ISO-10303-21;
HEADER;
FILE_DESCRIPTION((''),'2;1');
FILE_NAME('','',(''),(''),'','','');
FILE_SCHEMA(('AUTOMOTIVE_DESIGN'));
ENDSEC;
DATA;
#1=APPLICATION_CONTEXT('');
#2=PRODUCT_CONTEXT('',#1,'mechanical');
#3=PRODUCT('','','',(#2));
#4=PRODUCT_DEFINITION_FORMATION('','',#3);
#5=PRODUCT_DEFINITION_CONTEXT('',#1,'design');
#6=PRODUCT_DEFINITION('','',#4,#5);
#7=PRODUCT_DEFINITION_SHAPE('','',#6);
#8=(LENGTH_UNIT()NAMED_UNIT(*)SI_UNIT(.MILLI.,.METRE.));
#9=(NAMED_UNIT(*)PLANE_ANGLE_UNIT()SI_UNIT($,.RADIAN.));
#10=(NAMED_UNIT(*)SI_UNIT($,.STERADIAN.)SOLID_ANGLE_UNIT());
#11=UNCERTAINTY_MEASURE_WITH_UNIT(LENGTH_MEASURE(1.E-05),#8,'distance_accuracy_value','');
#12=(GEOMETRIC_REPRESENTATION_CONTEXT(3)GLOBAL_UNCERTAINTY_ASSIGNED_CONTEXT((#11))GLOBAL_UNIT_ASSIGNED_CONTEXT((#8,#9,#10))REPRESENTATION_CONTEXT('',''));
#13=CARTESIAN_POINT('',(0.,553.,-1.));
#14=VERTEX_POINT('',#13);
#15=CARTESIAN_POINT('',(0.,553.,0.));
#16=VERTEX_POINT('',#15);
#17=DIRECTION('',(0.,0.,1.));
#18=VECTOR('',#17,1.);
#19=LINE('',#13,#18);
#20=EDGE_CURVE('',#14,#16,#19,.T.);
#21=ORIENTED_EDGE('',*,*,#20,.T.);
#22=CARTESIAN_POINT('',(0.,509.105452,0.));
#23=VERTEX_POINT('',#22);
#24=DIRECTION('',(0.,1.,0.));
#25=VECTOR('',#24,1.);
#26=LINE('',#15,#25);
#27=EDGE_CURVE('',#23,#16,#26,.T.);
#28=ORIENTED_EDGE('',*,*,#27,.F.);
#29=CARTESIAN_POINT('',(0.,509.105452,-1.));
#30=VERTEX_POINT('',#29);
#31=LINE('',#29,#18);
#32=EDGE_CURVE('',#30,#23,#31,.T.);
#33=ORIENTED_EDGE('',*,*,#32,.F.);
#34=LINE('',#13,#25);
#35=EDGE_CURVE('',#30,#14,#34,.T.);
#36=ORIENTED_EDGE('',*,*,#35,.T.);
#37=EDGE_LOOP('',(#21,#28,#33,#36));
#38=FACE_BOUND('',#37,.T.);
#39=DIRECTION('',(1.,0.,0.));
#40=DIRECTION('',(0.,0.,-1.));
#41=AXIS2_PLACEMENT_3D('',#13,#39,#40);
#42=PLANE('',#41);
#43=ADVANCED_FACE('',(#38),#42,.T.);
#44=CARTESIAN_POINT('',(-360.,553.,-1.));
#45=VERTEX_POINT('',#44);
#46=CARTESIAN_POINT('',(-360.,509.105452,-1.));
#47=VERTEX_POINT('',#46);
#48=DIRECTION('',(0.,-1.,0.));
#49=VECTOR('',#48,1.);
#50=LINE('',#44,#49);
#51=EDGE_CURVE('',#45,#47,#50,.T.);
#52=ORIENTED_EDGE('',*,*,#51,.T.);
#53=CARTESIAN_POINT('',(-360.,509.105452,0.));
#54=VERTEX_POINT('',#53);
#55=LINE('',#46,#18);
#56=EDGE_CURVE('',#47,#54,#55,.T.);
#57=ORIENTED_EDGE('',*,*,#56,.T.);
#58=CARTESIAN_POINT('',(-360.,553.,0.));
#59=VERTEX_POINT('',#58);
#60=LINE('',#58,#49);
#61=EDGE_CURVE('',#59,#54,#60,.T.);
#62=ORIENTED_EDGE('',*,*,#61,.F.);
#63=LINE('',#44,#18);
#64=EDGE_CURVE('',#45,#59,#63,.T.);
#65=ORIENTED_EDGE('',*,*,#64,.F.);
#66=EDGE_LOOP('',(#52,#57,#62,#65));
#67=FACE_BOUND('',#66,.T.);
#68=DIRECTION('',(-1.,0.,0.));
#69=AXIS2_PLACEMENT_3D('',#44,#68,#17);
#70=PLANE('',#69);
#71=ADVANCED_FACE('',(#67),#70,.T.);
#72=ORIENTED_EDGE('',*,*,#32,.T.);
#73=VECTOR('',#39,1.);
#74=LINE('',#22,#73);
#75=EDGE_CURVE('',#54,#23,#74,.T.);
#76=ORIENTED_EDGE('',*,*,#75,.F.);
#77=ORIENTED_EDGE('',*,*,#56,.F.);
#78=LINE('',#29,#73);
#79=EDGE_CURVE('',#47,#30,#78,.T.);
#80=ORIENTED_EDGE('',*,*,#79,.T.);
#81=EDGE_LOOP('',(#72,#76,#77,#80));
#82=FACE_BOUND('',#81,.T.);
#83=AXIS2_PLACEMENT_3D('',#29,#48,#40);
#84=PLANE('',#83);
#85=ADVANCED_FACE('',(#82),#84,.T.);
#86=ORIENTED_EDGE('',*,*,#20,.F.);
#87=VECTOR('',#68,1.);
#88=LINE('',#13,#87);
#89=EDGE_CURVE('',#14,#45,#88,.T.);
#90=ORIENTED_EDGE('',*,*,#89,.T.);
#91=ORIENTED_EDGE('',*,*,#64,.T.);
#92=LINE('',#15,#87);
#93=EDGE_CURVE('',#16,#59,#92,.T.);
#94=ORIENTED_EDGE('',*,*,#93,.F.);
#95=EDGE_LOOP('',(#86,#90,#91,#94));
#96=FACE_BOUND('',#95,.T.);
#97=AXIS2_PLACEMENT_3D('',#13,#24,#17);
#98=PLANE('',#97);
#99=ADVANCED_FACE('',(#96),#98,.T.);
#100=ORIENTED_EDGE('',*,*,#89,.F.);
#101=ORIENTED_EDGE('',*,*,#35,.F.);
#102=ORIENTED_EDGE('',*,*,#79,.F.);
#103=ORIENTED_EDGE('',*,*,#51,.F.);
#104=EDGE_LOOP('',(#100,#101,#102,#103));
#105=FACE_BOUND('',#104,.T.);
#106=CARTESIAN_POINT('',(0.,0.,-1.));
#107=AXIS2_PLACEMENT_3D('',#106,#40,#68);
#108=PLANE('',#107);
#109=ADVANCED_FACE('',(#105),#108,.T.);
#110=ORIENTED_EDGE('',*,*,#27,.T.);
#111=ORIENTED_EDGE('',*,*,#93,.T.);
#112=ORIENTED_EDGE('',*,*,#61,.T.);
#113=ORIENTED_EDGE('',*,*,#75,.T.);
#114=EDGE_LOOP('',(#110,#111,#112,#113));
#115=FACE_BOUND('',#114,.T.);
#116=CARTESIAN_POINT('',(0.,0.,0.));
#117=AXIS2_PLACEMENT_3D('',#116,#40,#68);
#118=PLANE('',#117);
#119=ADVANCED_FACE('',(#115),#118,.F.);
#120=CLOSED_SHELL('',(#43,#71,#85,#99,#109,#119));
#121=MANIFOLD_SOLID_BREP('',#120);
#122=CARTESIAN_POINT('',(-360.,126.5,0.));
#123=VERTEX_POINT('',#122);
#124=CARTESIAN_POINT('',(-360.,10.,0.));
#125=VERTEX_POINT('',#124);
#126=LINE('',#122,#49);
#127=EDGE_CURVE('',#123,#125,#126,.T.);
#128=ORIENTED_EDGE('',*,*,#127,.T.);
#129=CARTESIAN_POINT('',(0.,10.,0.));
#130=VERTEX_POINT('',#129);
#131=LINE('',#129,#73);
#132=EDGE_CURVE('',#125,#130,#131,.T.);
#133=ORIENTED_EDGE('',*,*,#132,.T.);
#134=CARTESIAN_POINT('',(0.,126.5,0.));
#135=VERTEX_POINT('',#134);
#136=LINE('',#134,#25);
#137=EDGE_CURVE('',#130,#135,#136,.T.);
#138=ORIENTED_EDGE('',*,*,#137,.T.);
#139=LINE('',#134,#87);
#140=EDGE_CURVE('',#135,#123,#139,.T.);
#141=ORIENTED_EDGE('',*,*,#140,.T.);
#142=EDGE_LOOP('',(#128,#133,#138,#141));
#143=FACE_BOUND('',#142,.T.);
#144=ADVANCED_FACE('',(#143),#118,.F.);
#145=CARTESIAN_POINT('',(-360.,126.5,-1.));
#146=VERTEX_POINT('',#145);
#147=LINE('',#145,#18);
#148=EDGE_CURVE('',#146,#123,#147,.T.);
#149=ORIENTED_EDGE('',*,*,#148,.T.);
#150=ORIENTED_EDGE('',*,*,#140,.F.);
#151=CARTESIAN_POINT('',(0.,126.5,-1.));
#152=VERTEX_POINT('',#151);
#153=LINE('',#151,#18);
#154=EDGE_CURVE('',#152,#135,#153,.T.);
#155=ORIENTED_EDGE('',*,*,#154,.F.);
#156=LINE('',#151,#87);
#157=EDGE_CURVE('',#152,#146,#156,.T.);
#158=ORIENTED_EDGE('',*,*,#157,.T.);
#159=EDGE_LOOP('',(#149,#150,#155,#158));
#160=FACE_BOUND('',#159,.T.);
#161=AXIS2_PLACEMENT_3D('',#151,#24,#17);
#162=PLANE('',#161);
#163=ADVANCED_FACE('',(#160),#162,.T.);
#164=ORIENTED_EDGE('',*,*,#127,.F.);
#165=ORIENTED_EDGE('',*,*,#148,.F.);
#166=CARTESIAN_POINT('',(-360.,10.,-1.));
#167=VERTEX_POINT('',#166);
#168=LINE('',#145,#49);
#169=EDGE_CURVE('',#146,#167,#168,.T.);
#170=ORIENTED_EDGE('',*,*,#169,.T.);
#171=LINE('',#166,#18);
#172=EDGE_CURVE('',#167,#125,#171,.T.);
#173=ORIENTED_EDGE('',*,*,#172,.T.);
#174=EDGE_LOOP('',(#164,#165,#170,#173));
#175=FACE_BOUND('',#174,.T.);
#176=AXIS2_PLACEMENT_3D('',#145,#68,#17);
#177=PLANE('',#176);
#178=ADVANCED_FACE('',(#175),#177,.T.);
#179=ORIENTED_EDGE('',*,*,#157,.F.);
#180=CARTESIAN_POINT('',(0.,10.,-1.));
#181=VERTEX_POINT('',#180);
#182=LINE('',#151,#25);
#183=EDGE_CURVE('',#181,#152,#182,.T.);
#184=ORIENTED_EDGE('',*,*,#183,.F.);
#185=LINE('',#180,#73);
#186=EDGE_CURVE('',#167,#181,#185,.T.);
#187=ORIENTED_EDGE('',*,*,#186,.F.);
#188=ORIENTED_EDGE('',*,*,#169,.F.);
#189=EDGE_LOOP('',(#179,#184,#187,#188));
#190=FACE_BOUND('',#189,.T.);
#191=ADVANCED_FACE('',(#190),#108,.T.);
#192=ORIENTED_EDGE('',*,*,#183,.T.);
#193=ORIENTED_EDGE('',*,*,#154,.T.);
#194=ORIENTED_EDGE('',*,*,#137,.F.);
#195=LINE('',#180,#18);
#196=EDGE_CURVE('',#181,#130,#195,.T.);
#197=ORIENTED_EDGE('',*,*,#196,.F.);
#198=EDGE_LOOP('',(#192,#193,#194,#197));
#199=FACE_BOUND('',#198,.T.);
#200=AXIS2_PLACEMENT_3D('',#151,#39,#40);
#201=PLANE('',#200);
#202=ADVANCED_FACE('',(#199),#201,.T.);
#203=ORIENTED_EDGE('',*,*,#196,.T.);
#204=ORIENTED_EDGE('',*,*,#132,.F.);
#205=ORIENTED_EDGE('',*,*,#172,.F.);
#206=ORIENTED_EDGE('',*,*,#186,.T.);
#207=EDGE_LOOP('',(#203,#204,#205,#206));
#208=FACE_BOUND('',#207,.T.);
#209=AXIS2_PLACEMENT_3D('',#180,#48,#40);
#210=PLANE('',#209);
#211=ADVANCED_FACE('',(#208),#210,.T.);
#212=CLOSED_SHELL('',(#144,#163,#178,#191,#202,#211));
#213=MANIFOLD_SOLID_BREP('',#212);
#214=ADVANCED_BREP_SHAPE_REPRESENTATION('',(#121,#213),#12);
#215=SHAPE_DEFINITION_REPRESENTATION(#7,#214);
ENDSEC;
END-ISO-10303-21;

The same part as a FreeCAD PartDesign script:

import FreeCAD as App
import Part
import Sketcher
from FreeCAD import Vector


def add_polygon(sketch, points):
    """Adds a closed chain of lines whose ends are joined by coincident constraints."""
    first, n = sketch.GeometryCount, len(points)
    for a, b in zip(points, points[1:] + points[:1]):
        sketch.addGeometry(Part.LineSegment(App.Vector(*a, 0), App.Vector(*b, 0)), False)
    for i in range(n):
        sketch.addConstraint(Sketcher.Constraint("Coincident", first + i, 2, first + (i + 1) % n, 1))

doc = App.newDocument("Part")
body = doc.addObject("PartDesign::Body", "Body")

sketch1 = body.newObject("Sketcher::SketchObject", "Sketch")
sketch1.AttachmentSupport = (doc.getObject("XY_Plane"), [""])
sketch1.MapMode = "FlatFace"
add_polygon(sketch1, [(-360, 127), (-360, 10), (0, 10), (0, 127)])
sketch1.addConstraint(Sketcher.Constraint("Vertical", 0))
sketch1.addConstraint(Sketcher.Constraint("Horizontal", 1))
sketch1.addConstraint(Sketcher.Constraint("Vertical", 2))
sketch1.addConstraint(Sketcher.Constraint("Horizontal", 3))
sketch1.addConstraint(Sketcher.Constraint("PointOnObject", 1, 2, -2))
sketch1.addConstraint(Sketcher.Constraint("DistanceX", 1, 1, 1, 2, 360.0))
sketch1.addConstraint(Sketcher.Constraint("DistanceY", 0, 2, 0, 1, 116.5))
sketch1.addConstraint(Sketcher.Constraint("DistanceY", -1, 1, 0, 2, 10.0))
pad1 = body.newObject("PartDesign::Pad", "Pad")
pad1.Profile = sketch1
pad1.Length = 1
pad1.Reversed = True
body2 = doc.addObject("PartDesign::Body", "Body001")

sketch2 = body2.newObject("Sketcher::SketchObject", "Sketch001")
sketch2.AttachmentSupport = (doc.getObject("XY_Plane001"), [""])
sketch2.MapMode = "FlatFace"
add_polygon(sketch2, [(-360, 553), (-360, 509), (0, 509), (0, 553)])
sketch2.addConstraint(Sketcher.Constraint("Vertical", 0))
sketch2.addConstraint(Sketcher.Constraint("Horizontal", 1))
sketch2.addConstraint(Sketcher.Constraint("Vertical", 2))
sketch2.addConstraint(Sketcher.Constraint("Horizontal", 3))
sketch2.addConstraint(Sketcher.Constraint("PointOnObject", 1, 2, -2))
sketch2.addConstraint(Sketcher.Constraint("DistanceX", 1, 1, 1, 2, 360.0))
sketch2.addConstraint(Sketcher.Constraint("DistanceY", -1, 1, 2, 2, 553.0))
sketch2.addConstraint(Sketcher.Constraint("DistanceY", 0, 2, 0, 1, 43.894548))
pad2 = body2.newObject("PartDesign::Pad", "Pad001")
pad2.Profile = sketch2
pad2.Length = 1
pad2.Reversed = True

doc.recompute()
